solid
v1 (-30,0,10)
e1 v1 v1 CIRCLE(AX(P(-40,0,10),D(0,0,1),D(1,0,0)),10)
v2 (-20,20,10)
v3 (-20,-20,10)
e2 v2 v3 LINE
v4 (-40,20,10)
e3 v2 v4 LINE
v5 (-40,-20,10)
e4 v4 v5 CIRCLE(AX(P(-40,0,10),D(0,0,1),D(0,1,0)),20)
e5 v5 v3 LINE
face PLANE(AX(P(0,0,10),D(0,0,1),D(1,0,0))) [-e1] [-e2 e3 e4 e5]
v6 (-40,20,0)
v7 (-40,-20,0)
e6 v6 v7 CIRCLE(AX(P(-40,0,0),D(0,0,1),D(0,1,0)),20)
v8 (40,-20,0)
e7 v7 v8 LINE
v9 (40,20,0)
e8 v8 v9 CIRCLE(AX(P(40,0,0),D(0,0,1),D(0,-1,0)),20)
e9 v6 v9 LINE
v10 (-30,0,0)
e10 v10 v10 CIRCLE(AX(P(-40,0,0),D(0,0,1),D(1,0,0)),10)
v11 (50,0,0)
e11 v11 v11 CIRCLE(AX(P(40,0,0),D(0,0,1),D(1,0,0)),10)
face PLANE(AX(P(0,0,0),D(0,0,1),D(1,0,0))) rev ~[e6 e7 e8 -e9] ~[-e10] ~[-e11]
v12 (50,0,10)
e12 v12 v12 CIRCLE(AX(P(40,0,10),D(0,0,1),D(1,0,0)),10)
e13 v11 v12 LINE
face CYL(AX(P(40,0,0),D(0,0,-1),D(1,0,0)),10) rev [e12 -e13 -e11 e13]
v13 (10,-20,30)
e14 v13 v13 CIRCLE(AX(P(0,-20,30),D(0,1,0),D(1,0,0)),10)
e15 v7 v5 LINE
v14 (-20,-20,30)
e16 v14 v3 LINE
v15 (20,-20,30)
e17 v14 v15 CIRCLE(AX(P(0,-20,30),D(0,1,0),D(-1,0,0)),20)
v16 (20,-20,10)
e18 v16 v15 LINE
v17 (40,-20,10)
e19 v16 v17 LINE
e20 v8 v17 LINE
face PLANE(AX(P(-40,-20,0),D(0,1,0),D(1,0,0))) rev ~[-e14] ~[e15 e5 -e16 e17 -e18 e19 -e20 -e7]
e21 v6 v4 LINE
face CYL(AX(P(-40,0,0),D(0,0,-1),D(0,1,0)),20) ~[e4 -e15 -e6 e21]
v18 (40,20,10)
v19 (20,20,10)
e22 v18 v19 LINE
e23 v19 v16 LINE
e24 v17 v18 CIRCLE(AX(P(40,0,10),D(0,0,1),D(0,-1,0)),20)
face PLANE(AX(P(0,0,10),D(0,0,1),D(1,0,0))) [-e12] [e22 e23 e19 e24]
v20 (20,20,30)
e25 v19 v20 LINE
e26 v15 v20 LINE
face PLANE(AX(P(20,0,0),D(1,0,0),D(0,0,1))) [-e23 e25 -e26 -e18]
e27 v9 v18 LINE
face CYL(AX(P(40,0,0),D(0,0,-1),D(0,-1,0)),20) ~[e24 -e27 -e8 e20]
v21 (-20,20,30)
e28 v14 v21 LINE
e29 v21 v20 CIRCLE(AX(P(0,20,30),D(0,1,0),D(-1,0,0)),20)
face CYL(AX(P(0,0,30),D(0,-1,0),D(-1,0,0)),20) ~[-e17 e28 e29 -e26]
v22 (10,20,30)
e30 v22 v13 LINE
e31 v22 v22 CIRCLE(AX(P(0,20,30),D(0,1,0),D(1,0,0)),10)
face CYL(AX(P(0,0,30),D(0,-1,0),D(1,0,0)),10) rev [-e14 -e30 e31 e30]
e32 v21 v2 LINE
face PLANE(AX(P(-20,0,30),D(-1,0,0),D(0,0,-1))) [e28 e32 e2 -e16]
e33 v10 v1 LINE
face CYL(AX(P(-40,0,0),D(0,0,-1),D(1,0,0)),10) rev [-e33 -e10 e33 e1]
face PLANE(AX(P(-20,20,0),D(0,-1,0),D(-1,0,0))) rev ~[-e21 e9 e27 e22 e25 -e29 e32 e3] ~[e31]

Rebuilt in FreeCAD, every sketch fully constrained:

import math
import FreeCAD as App
import Part
import Sketcher
Q = App.Units.Quantity

doc = App.newDocument("Part")
body = doc.addObject("PartDesign::Body", "Body")
body.AllowCompound = True

sketch1 = doc.addObject("Sketcher::SketchObject", "Sketch")
body.addObject(sketch1)
sketch1.AttachmentSupport = (doc.XY_Plane, [""])
sketch1.MapMode = "FlatFace"
sketch1.addGeometry([
    Part.ArcOfCircle(Part.Circle(App.Vector(40, 0, 0), App.Vector(0, 0, 1), 20), math.radians(-90), math.radians(90)),
    Part.LineSegment(App.Vector(40, 20, 0), App.Vector(20, 20, 0)),
    Part.LineSegment(App.Vector(20, 20, 0), App.Vector(20, -20, 0)),
    Part.LineSegment(App.Vector(20, -20, 0), App.Vector(40, -20, 0)),
    Part.Circle(App.Vector(40, 0, 0), App.Vector(0, 0, 1), 10),
    Part.LineSegment(App.Vector(-20, -20, 0), App.Vector(-20, 20, 0)),
    Part.LineSegment(App.Vector(-20, 20, 0), App.Vector(-40, 20, 0)),
    Part.ArcOfCircle(Part.Circle(App.Vector(-40, 0, 0), App.Vector(0, 0, 1), 20), math.radians(90), math.radians(270)),
    Part.LineSegment(App.Vector(-40, -20, 0), App.Vector(-20, -20, 0)),
    Part.Circle(App.Vector(-40, 0, 0), App.Vector(0, 0, 1), 10),
], False)
sketch1.addConstraint([
    Sketcher.Constraint("Tangent", 0, 2, 1, 1),
    Sketcher.Constraint("Coincident", 1, 2, 2, 1),
    Sketcher.Constraint("Coincident", 2, 2, 3, 1),
    Sketcher.Constraint("Tangent", 3, 2, 0, 1),
    Sketcher.Constraint("Coincident", 5, 2, 6, 1),
    Sketcher.Constraint("Tangent", 6, 2, 7, 1),
    Sketcher.Constraint("Tangent", 7, 2, 8, 1),
    Sketcher.Constraint("Coincident", 8, 2, 5, 1),
    Sketcher.Constraint("Horizontal", 1),
    Sketcher.Constraint("Vertical", 2),
    Sketcher.Constraint("Horizontal", 3),
    Sketcher.Constraint("Vertical", 5),
    Sketcher.Constraint("Horizontal", 6),
    Sketcher.Constraint("Horizontal", 8),
    Sketcher.Constraint("Coincident", 4, 3, 0, 3),
    Sketcher.Constraint("Coincident", 9, 3, 7, 3),
    Sketcher.Constraint("Equal", 0, 7),
    Sketcher.Constraint("Equal", 4, 9),
    Sketcher.Constraint("Symmetric", 0, 3, 7, 3, -1, 1),
    Sketcher.Constraint("Symmetric", 1, 2, 5, 2, -2),
    Sketcher.Constraint("Diameter", 4, Q("20 mm")),
    Sketcher.Constraint("Radius", 0, Q("20 mm")),
    Sketcher.Constraint("DistanceX", 1, 2, 1, 1, Q("20 mm")),
    Sketcher.Constraint("DistanceX", -1, 1, 0, 3, Q("40 mm")),
])
pad1 = doc.addObject("PartDesign::Pad", "Pad")
body.addObject(pad1)
pad1.Profile = sketch1
pad1.Length = 10

sketch2 = doc.addObject("Sketcher::SketchObject", "Sketch001")
body.addObject(sketch2)
sketch2.AttachmentSupport = (doc.XZ_Plane, [""])
sketch2.MapMode = "FlatFace"
sketch2.addGeometry([
    Part.LineSegment(App.Vector(-20, 0, 0), App.Vector(-20, 30, 0)),
    Part.ArcOfCircle(Part.Circle(App.Vector(0, 30, 0), App.Vector(0, 0, 1), 20), math.radians(0), math.radians(180)),
    Part.LineSegment(App.Vector(20, 30, 0), App.Vector(20, 0, 0)),
    Part.LineSegment(App.Vector(20, 0, 0), App.Vector(-20, 0, 0)),
    Part.Circle(App.Vector(0, 30, 0), App.Vector(0, 0, 1), 10),
], False)
sketch2.addConstraint([
    Sketcher.Constraint("Tangent", 0, 2, 1, 2),
    Sketcher.Constraint("Tangent", 1, 1, 2, 1),
    Sketcher.Constraint("Coincident", 2, 2, 3, 1),
    Sketcher.Constraint("Coincident", 3, 2, 0, 1),
    Sketcher.Constraint("Vertical", 0),
    Sketcher.Constraint("Vertical", 2),
    Sketcher.Constraint("Horizontal", 3),
    Sketcher.Constraint("Coincident", 4, 3, 1, 3),
    Sketcher.Constraint("Symmetric", 2, 2, 3, 2, -1, 1),
    Sketcher.Constraint("Diameter", 4, Q("20 mm")),
    Sketcher.Constraint("Radius", 1, Q("20 mm")),
    Sketcher.Constraint("DistanceY", 0, 1, 0, 2, Q("30 mm")),
])
pad2 = doc.addObject("PartDesign::Pad", "Pad001")
body.addObject(pad2)
pad2.Profile = sketch2
pad2.Length = 40
pad2.Midplane = True

doc.recompute()
